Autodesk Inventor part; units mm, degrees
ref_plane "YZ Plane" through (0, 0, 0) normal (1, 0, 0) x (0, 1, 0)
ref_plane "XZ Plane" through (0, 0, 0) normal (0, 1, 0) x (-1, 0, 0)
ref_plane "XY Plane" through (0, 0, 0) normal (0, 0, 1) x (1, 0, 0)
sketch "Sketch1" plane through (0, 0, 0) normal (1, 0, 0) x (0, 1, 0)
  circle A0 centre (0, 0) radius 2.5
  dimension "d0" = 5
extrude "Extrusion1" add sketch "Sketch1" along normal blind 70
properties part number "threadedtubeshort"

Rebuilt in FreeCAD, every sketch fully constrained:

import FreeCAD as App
import Part
import Sketcher
from FreeCAD import Vector
Q = App.Units.Quantity

doc = App.newDocument("Part")
body = doc.addObject("PartDesign::Body", "Body")

sketch1 = body.newObject("Sketcher::SketchObject", "Sketch")
sketch1.AttachmentSupport = (doc.getObject("YZ_Plane"), [""])
sketch1.MapMode = "FlatFace"
sketch1.addGeometry(Part.Circle(Vector(0, 0, 0), Vector(0, 0, 1), 2.5), False)
sketch1.addConstraint(Sketcher.Constraint("Coincident", 0, 3, -1, 1))
sketch1.addConstraint(Sketcher.Constraint("Diameter", 0, Q("5 mm")))
pad1 = body.newObject("PartDesign::Pad", "Pad")
pad1.Profile = sketch1
pad1.Length = 70

doc.recompute()
